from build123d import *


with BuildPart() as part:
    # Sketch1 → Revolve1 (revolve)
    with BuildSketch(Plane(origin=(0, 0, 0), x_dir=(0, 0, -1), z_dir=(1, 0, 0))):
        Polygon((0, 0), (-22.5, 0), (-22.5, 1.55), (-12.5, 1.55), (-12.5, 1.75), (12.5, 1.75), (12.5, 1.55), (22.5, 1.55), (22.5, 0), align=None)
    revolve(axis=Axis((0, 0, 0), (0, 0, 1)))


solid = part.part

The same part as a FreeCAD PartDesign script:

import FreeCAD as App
import Part
import Sketcher
from FreeCAD import Vector
Q = App.Units.Quantity

doc = App.newDocument("Part")
params = doc.addObject("Spreadsheet::Sheet", "Params")
for row, (alias, value) in enumerate([
    ("sketch1_height", "45 mm"),
    ("sketch1_height2", "10 mm"),
    ("sketch1_width", "0.2 mm"),
    ("sketch1_width2", "1.55 mm"),
    ("revolution_angle", "360 deg"),
], start=1):
    params.set(f"A{row}", alias)
    params.set(f"B{row}", "=" + value)
    params.setAlias(f"B{row}", alias)

body = doc.addObject("PartDesign::Body", "Body")

sketch1 = doc.addObject("Sketcher::SketchObject", "Sketch")
body.addObject(sketch1)
sketch1.AttachmentSupport = (doc.YZ_Plane, [""])
sketch1.MapMode = "FlatFace"
sketch1.addGeometry([
    Part.LineSegment(Vector(0, 22.5, 0), Vector(0, -22.5, 0)),
    Part.LineSegment(Vector(0, -22.5, 0), Vector(1.55, -22.5, 0)),
    Part.LineSegment(Vector(1.55, -22.5, 0), Vector(1.55, -12.5, 0)),
    Part.LineSegment(Vector(1.55, -12.5, 0), Vector(1.75, -12.5, 0)),
    Part.LineSegment(Vector(1.75, -12.5, 0), Vector(1.75, 12.5, 0)),
    Part.LineSegment(Vector(1.75, 12.5, 0), Vector(1.55, 12.5, 0)),
    Part.LineSegment(Vector(1.55, 12.5, 0), Vector(1.55, 22.5, 0)),
    Part.LineSegment(Vector(1.55, 22.5, 0), Vector(0, 22.5, 0)),
], False)
sketch1.addConstraint([
    Sketcher.Constraint("Coincident", 0, 2, 1, 1),
    Sketcher.Constraint("Coincident", 1, 2, 2, 1),
    Sketcher.Constraint("Coincident", 2, 2, 3, 1),
    Sketcher.Constraint("Coincident", 3, 2, 4, 1),
    Sketcher.Constraint("Coincident", 4, 2, 5, 1),
    Sketcher.Constraint("Coincident", 5, 2, 6, 1),
    Sketcher.Constraint("Coincident", 6, 2, 7, 1),
    Sketcher.Constraint("Coincident", 7, 2, 0, 1),
    Sketcher.Constraint("Vertical", 0),
    Sketcher.Constraint("Horizontal", 1),
    Sketcher.Constraint("Vertical", 2),
    Sketcher.Constraint("Horizontal", 3),
    Sketcher.Constraint("Vertical", 4),
    Sketcher.Constraint("Horizontal", 5),
    Sketcher.Constraint("Vertical", 6),
    Sketcher.Constraint("Horizontal", 7),
    Sketcher.Constraint("Symmetric", 0, 2, 7, 2, -1, 1),
    Sketcher.Constraint("Symmetric", 2, 2, 5, 2, -1),
    Sketcher.Constraint("DistanceY", 0, 2, 0, 1, Q("45 mm")),
    Sketcher.Constraint("DistanceY", 2, 1, 2, 2, Q("10 mm")),
    Sketcher.Constraint("DistanceX", 3, 1, 3, 2, Q("0.2 mm")),
    Sketcher.Constraint("DistanceX", 1, 1, 1, 2, Q("1.55 mm")),
])
sketch1.setExpression("Constraints[18]", "Params.sketch1_height")
sketch1.setExpression("Constraints[19]", "Params.sketch1_height2")
sketch1.setExpression("Constraints[20]", "Params.sketch1_width")
sketch1.setExpression("Constraints[21]", "Params.sketch1_width2")
revolution = doc.addObject("PartDesign::Revolution", "Revolution")
body.addObject(revolution)
revolution.Profile = sketch1
revolution.ReferenceAxis = (sketch1, ["V_Axis"])
revolution.setExpression("Angle", "Params.revolution_angle")

doc.recompute()
